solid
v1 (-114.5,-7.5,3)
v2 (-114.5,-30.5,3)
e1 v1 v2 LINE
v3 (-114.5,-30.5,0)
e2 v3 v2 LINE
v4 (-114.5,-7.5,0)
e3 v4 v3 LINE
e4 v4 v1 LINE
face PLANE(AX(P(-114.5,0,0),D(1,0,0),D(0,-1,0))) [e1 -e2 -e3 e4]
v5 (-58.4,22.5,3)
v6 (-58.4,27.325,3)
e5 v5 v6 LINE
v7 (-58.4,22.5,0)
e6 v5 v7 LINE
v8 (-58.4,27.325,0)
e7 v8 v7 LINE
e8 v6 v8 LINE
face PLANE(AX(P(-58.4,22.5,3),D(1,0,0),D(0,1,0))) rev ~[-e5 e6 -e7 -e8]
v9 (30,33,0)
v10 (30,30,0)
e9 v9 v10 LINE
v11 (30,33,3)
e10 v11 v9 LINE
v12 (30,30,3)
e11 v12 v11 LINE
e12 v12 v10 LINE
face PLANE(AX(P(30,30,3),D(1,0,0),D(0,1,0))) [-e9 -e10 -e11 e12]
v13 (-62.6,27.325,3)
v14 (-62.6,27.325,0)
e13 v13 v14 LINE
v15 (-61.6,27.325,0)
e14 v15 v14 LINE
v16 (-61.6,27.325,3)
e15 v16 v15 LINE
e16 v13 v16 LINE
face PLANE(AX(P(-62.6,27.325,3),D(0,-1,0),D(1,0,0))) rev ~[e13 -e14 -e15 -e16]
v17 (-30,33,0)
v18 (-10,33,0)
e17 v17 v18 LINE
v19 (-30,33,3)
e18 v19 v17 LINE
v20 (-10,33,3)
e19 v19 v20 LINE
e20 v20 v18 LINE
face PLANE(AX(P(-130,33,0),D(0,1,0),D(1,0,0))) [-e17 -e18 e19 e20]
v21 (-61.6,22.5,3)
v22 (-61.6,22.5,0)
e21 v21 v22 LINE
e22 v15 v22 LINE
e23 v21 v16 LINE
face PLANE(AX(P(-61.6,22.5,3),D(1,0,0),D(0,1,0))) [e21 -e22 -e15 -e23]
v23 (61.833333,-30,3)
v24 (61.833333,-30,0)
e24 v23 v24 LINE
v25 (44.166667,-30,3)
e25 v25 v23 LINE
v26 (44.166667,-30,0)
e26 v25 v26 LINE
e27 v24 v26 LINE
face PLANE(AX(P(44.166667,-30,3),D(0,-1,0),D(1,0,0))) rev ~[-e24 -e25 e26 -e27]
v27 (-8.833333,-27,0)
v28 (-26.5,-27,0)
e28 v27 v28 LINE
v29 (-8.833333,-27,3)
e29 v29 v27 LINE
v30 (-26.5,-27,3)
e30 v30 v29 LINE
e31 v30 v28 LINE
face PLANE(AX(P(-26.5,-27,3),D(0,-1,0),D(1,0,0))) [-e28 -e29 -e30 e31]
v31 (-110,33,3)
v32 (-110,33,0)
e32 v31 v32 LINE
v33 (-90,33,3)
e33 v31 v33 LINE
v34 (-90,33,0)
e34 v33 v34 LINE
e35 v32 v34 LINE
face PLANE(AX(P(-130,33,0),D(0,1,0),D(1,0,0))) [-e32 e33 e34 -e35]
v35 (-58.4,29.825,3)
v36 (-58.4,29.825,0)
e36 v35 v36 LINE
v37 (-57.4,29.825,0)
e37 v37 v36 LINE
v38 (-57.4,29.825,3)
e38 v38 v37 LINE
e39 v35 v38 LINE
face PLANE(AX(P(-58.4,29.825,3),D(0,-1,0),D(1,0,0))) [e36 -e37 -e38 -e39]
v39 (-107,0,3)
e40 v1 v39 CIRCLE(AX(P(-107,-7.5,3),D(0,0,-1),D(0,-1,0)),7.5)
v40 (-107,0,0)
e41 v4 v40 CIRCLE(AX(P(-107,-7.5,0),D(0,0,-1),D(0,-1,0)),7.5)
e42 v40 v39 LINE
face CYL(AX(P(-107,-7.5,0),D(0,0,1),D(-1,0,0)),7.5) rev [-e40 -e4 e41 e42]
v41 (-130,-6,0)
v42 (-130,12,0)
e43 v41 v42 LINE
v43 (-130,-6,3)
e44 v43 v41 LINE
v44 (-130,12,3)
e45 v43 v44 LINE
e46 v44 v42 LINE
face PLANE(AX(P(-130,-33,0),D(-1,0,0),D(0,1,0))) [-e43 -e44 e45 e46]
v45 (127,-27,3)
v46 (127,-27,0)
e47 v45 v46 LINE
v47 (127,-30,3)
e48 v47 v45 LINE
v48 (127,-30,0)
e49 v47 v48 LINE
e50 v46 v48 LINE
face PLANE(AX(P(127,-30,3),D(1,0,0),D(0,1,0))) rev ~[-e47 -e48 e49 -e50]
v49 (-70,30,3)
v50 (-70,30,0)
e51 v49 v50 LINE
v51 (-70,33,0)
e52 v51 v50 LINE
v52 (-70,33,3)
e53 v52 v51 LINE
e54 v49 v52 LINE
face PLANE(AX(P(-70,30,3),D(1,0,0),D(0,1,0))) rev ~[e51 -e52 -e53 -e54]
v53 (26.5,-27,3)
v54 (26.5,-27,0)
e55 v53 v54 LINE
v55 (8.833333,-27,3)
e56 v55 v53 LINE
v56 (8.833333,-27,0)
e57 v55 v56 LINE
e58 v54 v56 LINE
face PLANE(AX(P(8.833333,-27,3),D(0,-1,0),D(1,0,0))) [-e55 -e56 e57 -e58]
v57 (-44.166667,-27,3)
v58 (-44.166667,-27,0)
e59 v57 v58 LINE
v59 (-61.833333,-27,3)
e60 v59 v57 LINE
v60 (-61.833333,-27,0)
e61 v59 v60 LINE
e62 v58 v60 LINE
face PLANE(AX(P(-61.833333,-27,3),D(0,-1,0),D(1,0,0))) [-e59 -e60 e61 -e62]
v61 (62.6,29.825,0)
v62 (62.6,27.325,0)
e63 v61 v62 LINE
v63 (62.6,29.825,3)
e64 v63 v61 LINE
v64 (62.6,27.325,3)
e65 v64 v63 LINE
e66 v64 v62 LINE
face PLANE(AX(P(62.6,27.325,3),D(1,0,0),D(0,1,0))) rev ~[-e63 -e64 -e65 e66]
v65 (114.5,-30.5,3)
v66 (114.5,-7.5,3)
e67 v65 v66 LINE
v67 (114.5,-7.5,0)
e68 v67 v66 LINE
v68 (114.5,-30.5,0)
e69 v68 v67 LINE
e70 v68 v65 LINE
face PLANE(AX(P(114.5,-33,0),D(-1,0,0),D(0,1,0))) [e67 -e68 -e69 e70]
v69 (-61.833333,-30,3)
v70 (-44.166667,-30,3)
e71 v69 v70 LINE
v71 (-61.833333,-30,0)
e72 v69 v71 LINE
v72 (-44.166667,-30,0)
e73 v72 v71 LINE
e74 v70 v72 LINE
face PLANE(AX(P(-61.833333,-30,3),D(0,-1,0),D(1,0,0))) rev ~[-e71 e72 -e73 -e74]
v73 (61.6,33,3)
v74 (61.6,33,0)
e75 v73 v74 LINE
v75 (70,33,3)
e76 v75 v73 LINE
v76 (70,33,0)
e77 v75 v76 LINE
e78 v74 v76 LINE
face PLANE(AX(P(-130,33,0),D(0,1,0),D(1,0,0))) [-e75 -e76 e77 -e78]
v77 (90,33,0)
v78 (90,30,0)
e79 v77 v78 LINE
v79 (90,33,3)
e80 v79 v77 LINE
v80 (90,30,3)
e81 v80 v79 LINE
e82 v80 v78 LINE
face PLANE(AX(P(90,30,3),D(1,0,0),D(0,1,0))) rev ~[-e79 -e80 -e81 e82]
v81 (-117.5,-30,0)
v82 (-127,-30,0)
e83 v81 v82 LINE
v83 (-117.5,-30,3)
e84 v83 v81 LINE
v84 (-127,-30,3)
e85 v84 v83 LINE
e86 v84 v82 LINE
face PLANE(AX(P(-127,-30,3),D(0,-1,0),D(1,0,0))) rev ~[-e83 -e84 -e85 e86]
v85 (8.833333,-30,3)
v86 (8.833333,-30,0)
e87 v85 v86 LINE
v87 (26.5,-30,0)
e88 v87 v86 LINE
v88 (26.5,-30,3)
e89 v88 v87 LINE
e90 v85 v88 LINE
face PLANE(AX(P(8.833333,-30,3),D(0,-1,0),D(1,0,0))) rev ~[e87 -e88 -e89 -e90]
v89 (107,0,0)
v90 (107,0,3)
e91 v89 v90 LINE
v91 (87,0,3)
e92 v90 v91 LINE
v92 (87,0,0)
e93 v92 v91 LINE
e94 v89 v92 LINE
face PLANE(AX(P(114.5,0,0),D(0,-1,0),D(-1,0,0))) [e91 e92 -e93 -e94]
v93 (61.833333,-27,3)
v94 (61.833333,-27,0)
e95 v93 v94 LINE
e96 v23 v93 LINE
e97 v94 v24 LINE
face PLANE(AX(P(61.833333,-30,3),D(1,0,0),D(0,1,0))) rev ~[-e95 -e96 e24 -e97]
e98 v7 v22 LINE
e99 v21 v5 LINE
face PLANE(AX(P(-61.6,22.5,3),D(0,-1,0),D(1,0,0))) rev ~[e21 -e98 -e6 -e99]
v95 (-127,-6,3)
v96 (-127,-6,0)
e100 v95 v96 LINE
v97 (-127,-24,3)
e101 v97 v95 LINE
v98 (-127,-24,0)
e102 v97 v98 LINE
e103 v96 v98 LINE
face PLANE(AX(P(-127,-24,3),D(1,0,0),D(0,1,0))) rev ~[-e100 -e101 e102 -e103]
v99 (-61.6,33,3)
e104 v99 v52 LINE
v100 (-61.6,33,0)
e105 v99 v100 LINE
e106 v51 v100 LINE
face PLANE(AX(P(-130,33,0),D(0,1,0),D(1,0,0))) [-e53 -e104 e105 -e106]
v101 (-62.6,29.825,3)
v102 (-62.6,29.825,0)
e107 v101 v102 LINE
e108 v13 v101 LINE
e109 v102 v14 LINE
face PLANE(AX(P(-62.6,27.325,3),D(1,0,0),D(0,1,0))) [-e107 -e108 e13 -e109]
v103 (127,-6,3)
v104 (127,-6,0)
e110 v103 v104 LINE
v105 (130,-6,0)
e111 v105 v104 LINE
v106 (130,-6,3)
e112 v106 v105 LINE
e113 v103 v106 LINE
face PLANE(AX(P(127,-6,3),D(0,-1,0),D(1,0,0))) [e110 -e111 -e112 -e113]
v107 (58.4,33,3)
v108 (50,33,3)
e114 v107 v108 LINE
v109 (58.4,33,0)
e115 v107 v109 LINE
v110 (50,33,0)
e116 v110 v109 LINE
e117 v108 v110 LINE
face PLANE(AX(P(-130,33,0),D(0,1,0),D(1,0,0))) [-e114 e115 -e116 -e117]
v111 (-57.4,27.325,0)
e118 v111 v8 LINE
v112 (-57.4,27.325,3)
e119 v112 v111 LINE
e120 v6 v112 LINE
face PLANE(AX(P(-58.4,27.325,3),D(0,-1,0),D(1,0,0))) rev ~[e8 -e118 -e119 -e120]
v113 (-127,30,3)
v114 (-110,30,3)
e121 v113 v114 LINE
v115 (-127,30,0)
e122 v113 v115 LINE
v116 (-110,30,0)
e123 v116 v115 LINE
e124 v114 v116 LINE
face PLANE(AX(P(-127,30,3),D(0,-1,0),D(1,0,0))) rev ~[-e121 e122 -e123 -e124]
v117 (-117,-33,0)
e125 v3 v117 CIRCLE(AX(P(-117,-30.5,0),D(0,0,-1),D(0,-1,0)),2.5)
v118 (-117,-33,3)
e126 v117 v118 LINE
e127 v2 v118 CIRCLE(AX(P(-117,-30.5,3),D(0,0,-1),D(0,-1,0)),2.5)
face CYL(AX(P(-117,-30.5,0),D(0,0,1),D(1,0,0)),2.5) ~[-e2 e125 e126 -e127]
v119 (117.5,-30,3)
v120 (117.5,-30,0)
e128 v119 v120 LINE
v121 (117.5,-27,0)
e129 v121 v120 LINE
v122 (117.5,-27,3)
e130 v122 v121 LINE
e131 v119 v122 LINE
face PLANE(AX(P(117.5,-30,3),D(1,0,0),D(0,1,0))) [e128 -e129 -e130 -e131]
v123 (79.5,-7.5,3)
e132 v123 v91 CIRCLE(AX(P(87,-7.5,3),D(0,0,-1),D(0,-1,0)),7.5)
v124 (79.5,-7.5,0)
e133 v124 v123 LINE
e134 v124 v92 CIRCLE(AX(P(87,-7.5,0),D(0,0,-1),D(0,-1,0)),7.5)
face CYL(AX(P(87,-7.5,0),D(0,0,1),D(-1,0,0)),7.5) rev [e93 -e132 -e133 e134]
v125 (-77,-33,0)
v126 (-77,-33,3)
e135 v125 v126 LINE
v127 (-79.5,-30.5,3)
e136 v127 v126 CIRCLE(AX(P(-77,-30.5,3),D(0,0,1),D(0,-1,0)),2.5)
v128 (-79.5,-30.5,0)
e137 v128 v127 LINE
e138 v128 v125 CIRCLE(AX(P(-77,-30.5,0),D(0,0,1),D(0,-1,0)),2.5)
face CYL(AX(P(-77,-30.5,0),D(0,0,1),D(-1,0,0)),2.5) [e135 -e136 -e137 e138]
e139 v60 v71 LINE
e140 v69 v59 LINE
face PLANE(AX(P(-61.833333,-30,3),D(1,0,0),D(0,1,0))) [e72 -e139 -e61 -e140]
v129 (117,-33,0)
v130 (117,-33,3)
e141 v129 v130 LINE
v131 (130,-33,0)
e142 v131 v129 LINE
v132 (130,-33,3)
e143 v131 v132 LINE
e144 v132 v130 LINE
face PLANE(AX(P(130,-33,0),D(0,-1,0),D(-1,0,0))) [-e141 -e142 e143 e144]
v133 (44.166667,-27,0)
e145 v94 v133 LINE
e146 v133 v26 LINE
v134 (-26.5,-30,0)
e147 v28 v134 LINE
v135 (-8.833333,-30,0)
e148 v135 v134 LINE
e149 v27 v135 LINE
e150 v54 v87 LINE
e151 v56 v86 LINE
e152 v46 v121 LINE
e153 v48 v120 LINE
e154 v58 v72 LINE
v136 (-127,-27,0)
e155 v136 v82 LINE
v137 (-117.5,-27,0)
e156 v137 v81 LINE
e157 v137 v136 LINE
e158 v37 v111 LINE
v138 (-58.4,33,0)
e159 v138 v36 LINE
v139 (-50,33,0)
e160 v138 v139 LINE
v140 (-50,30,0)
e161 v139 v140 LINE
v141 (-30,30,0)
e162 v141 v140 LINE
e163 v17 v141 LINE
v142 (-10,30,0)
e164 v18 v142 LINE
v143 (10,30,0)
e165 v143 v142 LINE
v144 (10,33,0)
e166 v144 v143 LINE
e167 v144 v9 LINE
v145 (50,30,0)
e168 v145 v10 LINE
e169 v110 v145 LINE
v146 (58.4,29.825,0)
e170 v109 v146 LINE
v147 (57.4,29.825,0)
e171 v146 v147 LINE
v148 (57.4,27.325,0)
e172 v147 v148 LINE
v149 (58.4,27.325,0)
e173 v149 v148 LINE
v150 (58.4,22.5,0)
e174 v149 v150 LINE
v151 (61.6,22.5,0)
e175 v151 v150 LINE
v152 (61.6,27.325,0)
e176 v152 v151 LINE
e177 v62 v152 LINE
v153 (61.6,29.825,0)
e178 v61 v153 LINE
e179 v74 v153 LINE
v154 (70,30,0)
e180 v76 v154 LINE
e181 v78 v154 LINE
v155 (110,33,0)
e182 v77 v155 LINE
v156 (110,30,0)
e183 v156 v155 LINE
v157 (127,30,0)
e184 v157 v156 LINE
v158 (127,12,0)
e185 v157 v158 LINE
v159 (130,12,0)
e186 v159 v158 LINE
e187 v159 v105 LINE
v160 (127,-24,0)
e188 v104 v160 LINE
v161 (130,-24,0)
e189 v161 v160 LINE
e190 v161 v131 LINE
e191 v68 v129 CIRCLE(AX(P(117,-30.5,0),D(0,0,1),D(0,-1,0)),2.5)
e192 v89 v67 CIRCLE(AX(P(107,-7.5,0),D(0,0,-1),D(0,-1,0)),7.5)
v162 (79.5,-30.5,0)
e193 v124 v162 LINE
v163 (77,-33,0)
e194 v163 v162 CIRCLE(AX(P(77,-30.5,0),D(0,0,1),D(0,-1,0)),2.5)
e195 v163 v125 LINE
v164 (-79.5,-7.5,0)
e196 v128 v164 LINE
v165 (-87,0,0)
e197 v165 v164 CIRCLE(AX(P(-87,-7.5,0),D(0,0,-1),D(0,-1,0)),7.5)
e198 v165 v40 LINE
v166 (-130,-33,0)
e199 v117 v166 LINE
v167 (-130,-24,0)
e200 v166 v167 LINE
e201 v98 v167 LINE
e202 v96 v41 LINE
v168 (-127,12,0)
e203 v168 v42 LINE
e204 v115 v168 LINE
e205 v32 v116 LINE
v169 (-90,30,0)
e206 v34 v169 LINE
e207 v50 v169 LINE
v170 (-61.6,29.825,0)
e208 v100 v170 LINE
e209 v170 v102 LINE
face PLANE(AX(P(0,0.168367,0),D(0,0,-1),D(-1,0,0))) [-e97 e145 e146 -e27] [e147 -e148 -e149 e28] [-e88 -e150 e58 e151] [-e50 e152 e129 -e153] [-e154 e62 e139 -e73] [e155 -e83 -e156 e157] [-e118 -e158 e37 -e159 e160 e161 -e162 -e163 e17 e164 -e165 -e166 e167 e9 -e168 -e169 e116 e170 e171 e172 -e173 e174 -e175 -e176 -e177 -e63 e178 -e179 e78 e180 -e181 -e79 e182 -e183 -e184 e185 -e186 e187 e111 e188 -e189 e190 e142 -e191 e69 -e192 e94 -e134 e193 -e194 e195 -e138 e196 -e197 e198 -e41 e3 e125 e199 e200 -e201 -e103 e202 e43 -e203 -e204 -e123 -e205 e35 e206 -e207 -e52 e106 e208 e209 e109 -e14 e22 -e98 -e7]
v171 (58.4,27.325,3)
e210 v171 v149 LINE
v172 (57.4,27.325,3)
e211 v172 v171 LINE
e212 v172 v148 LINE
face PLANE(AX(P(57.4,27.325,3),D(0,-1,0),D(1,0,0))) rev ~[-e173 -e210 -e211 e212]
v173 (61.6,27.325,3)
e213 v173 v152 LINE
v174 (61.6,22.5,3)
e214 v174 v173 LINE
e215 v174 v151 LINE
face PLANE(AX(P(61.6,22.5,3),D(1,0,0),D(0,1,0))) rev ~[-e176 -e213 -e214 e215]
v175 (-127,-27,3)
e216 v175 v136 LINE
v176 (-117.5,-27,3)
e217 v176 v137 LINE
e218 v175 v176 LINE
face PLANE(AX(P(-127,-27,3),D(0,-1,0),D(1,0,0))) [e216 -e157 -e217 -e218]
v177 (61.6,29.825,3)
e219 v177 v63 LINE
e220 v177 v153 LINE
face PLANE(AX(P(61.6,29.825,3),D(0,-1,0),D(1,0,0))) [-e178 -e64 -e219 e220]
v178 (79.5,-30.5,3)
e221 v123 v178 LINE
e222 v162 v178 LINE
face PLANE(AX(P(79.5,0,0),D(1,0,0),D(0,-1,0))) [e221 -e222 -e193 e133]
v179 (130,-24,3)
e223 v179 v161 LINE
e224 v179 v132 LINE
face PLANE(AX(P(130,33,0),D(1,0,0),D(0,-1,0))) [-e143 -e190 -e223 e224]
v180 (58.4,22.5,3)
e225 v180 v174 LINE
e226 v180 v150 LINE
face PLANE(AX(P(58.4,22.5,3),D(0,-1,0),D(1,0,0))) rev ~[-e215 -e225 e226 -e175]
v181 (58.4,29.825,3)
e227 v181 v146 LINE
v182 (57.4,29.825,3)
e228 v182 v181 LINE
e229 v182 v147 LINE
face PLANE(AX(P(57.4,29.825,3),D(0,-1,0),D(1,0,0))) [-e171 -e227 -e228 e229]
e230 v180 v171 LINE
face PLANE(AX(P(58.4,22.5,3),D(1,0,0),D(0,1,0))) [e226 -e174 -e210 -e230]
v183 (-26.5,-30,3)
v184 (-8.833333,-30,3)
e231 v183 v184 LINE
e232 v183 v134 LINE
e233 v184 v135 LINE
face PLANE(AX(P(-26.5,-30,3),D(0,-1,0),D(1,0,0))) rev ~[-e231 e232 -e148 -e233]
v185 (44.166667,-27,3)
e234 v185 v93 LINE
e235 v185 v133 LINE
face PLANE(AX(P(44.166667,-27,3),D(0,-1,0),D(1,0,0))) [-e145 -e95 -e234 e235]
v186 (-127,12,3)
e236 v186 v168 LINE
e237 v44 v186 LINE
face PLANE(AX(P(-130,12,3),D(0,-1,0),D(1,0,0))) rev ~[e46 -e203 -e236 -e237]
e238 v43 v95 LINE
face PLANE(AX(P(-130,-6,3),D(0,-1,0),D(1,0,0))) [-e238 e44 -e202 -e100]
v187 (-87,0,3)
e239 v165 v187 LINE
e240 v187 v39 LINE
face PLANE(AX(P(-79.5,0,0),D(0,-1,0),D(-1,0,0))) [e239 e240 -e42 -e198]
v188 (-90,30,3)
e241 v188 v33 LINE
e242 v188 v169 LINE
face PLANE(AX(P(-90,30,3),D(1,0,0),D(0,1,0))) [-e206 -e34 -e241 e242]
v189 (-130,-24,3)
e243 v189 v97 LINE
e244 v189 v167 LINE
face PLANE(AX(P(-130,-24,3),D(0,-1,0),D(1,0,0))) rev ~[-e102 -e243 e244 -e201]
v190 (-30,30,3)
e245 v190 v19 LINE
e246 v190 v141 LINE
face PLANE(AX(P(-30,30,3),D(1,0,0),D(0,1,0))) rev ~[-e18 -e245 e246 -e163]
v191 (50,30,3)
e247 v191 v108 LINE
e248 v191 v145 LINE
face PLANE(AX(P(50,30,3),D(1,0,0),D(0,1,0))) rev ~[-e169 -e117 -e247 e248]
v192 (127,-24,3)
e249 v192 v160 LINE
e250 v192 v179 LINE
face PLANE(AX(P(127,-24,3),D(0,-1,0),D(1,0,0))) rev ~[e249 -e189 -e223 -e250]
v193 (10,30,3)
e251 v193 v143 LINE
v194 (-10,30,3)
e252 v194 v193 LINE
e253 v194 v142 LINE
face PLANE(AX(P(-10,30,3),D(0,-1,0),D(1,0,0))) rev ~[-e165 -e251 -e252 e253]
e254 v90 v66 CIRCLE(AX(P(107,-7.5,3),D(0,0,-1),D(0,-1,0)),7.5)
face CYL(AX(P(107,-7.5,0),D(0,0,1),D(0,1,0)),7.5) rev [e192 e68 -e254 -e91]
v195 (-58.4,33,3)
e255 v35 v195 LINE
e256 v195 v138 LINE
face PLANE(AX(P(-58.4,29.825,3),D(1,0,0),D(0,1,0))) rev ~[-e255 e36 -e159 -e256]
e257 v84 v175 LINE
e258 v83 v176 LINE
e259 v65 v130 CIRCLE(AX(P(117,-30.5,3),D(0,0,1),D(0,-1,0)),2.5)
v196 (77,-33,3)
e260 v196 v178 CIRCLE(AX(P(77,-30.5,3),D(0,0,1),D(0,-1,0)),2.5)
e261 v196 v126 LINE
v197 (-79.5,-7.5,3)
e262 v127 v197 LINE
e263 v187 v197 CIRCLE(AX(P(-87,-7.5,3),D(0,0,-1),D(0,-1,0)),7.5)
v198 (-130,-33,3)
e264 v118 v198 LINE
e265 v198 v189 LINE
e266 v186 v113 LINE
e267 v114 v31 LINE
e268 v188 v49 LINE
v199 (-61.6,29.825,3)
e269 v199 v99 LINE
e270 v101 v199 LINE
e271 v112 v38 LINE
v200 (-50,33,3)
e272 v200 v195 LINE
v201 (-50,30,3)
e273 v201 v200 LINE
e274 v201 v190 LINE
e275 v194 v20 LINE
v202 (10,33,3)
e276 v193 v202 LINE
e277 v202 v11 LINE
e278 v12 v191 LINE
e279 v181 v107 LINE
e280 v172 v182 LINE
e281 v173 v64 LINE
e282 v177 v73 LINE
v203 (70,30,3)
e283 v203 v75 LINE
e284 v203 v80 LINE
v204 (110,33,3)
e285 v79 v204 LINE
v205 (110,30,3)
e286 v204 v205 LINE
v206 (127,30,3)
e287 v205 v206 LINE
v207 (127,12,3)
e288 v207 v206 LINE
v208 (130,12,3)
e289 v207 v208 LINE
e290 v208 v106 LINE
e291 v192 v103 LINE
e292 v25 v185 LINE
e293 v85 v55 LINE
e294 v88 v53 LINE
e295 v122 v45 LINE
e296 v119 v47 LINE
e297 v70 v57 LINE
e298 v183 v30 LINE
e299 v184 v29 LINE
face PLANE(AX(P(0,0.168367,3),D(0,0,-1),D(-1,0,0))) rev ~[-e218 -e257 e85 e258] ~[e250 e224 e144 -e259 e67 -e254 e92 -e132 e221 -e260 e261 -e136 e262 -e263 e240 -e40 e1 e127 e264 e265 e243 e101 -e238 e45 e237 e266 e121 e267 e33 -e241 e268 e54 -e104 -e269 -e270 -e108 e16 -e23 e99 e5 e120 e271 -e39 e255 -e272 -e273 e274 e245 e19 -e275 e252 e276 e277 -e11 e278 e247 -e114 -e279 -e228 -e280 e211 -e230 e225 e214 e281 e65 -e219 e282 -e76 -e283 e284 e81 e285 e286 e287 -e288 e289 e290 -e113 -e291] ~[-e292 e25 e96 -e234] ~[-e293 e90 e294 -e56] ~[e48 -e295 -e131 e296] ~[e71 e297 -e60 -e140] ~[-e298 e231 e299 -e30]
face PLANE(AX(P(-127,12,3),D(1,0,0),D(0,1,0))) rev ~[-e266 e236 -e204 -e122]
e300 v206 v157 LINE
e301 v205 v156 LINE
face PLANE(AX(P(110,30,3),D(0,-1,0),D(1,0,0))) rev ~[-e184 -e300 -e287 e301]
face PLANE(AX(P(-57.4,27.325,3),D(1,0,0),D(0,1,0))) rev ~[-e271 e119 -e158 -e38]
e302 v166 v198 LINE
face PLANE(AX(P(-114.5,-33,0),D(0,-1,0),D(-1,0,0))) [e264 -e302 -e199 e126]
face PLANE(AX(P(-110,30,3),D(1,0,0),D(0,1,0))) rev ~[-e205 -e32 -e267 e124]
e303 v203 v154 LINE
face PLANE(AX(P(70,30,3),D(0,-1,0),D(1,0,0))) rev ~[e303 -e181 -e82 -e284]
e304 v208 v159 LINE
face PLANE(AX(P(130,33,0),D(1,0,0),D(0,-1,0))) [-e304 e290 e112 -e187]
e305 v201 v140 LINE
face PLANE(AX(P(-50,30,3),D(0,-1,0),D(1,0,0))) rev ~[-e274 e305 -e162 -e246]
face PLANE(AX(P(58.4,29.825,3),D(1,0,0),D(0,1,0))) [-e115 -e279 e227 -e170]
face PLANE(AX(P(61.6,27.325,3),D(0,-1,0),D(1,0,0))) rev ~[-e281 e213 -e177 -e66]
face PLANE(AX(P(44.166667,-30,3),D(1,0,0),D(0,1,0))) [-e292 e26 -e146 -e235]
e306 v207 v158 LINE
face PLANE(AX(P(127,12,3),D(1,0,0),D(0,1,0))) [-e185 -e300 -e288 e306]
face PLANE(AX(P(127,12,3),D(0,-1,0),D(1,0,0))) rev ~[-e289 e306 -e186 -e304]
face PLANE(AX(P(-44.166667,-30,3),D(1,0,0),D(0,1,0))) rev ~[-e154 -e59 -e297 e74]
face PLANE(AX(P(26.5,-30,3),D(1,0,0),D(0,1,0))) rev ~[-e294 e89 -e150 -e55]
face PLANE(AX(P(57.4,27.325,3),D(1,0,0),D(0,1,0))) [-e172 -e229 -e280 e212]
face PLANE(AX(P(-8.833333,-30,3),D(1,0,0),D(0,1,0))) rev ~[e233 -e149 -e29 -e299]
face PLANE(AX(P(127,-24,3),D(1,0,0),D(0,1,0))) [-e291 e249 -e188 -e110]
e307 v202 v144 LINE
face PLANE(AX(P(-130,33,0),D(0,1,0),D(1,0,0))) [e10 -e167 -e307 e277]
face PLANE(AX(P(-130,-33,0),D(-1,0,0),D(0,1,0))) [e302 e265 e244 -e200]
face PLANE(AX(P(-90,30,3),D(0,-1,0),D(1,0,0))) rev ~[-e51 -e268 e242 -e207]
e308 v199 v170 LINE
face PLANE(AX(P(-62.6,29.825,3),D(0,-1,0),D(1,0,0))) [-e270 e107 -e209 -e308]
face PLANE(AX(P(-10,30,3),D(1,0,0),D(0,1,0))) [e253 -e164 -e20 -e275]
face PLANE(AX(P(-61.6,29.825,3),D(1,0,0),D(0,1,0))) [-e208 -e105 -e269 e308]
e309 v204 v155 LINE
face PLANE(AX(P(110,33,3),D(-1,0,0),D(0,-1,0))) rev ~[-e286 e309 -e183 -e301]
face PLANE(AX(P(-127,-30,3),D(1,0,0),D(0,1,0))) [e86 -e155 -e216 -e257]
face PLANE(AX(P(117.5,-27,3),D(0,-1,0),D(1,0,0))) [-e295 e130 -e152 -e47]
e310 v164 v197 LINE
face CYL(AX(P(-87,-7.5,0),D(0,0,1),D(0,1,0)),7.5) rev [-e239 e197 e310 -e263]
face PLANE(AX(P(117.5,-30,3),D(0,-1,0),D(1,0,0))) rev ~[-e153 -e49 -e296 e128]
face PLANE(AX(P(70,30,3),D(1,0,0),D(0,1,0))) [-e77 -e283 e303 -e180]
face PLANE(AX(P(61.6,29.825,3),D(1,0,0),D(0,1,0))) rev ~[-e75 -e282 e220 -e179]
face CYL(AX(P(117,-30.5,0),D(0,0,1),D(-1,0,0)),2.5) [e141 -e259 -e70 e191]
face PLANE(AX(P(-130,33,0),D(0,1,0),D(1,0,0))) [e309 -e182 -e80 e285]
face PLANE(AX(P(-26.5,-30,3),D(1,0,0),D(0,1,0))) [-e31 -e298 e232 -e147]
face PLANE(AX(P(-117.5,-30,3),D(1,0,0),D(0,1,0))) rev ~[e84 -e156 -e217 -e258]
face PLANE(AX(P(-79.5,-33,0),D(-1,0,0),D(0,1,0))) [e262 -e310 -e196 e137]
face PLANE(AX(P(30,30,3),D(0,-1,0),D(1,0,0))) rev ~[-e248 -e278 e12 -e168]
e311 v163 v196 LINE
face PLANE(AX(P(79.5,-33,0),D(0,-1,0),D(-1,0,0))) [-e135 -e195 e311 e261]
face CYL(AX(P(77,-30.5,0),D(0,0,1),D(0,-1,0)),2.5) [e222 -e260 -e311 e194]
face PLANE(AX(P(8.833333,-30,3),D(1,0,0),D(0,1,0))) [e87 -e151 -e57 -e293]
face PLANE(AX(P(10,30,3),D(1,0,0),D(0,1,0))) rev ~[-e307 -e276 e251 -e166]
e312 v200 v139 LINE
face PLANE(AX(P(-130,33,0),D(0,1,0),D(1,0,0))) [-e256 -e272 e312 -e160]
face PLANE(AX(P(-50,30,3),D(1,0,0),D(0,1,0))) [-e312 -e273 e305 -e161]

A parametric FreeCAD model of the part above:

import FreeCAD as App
import Part
import Sketcher
from FreeCAD import Vector


def edges_at(feature, points):
    """Names of the edges that pass closest to the given points."""
    edges = feature.Shape.Edges
    near = lambda p: min(range(len(edges)), key=lambda i: edges[i].distToShape(Part.Vertex(*p))[0])
    return sorted({f"Edge{near(p) + 1}" for p in points})

doc = App.newDocument("Part")
body = doc.addObject("PartDesign::Body", "Body")

# Sketch on XY plane
sketch1 = body.newObject("Sketcher::SketchObject", "Sketch")
sketch1.AttachmentSupport = (doc.getObject("XY_Plane"), [""])
sketch1.MapMode = "FlatFace"
sketch1.addGeometry(Part.LineSegment(Vector(130, 33, 0), Vector(-130, 33, 0)), False)
sketch1.addGeometry(Part.LineSegment(Vector(-130, 33, 0), Vector(-130, -33, 0)), False)
sketch1.addGeometry(Part.LineSegment(Vector(-130, -33, 0), Vector(-114.5, -33, 0)), False)
sketch1.addGeometry(Part.LineSegment(Vector(-114.5, -33, 0), Vector(-114.5, 0, 0)), False)
sketch1.addGeometry(Part.LineSegment(Vector(-114.5, 0, 0), Vector(-79.5, 0, 0)), False)
sketch1.addGeometry(Part.LineSegment(Vector(-79.5, 0, 0), Vector(-79.5, -33, 0)), False)
sketch1.addGeometry(Part.LineSegment(Vector(-79.5, -33, 0), Vector(79.5, -33, 0)), False)
sketch1.addGeometry(Part.LineSegment(Vector(79.5, -33, 0), Vector(79.5, 0, 0)), False)
sketch1.addGeometry(Part.LineSegment(Vector(79.5, 0, 0), Vector(114.5, 0, 0)), False)
sketch1.addGeometry(Part.LineSegment(Vector(114.5, 0, 0), Vector(114.5, -33, 0)), False)
sketch1.addGeometry(Part.LineSegment(Vector(114.5, -33, 0), Vector(130, -33, 0)), False)
sketch1.addGeometry(Part.LineSegment(Vector(130, -33, 0), Vector(130, 33, 0)), False)
sketch1.addConstraint(Sketcher.Constraint("Coincident", 0, 2, 1, 1))
sketch1.addConstraint(Sketcher.Constraint("Coincident", 1, 2, 2, 1))
sketch1.addConstraint(Sketcher.Constraint("Coincident", 2, 2, 3, 1))
sketch1.addConstraint(Sketcher.Constraint("Coincident", 3, 2, 4, 1))
sketch1.addConstraint(Sketcher.Constraint("Coincident", 4, 2, 5, 1))
sketch1.addConstraint(Sketcher.Constraint("Coincident", 5, 2, 6, 1))
sketch1.addConstraint(Sketcher.Constraint("Coincident", 6, 2, 7, 1))
sketch1.addConstraint(Sketcher.Constraint("Coincident", 7, 2, 8, 1))
sketch1.addConstraint(Sketcher.Constraint("Coincident", 8, 2, 9, 1))
sketch1.addConstraint(Sketcher.Constraint("Coincident", 9, 2, 10, 1))
sketch1.addConstraint(Sketcher.Constraint("Coincident", 10, 2, 11, 1))
sketch1.addConstraint(Sketcher.Constraint("Coincident", 11, 2, 0, 1))
sketch1.addConstraint(Sketcher.Constraint("Horizontal", 0))
sketch1.addConstraint(Sketcher.Constraint("Vertical", 1))
sketch1.addConstraint(Sketcher.Constraint("Horizontal", 2))
sketch1.addConstraint(Sketcher.Constraint("Vertical", 3))
sketch1.addConstraint(Sketcher.Constraint("Horizontal", 4))
sketch1.addConstraint(Sketcher.Constraint("Vertical", 5))
sketch1.addConstraint(Sketcher.Constraint("Horizontal", 6))
sketch1.addConstraint(Sketcher.Constraint("Vertical", 7))
sketch1.addConstraint(Sketcher.Constraint("Horizontal", 8))
sketch1.addConstraint(Sketcher.Constraint("Vertical", 9))
sketch1.addConstraint(Sketcher.Constraint("Horizontal", 10))
sketch1.addConstraint(Sketcher.Constraint("Vertical", 11))
sketch1.addConstraint(Sketcher.Constraint("Symmetric", 4, 2, 7, 2, -1, 1))
sketch1.addConstraint(Sketcher.Constraint("Symmetric", 0, 2, 10, 2, -1, 1))
sketch1.addConstraint(Sketcher.Constraint("Symmetric", 3, 2, 8, 2, -2))
sketch1.addConstraint(Sketcher.Constraint("Horizontal", 2, 2, 5, 2))
sketch1.addConstraint(Sketcher.Constraint("Horizontal", 6, 2, 9, 2))
sketch1.addConstraint(Sketcher.Constraint("DistanceX", 0, 2, 0, 1, 260.0))
sketch1.addConstraint(Sketcher.Constraint("DistanceX", 4, 1, 4, 2, 35.0))
sketch1.addConstraint(Sketcher.Constraint("DistanceX", 6, 1, 6, 2, 159.0))
sketch1.addConstraint(Sketcher.Constraint("DistanceY", 1, 2, 1, 1, 66.0))
pad1 = body.newObject("PartDesign::Pad", "Pad")
pad1.Profile = sketch1
pad1.Length = 3

# Sketch on XY plane
sketch2 = body.newObject("Sketcher::SketchObject", "Sketch001")
sketch2.AttachmentSupport = (doc.getObject("XY_Plane"), [""])
sketch2.MapMode = "FlatFace"
sketch2.AttachmentOffset = App.Placement(Vector(0, 0, 3), App.Rotation())
sketch2.addGeometry(Part.LineSegment(Vector(-130, 12, 0), Vector(-127, 12, 0)), False)
sketch2.addGeometry(Part.LineSegment(Vector(-127, 12, 0), Vector(-127, 30, 0)), False)
sketch2.addGeometry(Part.LineSegment(Vector(-127, 30, 0), Vector(-110, 30, 0)), False)
sketch2.addGeometry(Part.LineSegment(Vector(-110, 30, 0), Vector(-110, 33, 0)), False)
sketch2.addGeometry(Part.LineSegment(Vector(-110, 33, 0), Vector(-130, 33, 0)), False)
sketch2.addGeometry(Part.LineSegment(Vector(-130, 33, 0), Vector(-130, 12, 0)), False)
sketch2.addGeometry(Part.LineSegment(Vector(-130, -6, 0), Vector(-130, -24, 0)), False)
sketch2.addGeometry(Part.LineSegment(Vector(-130, -24, 0), Vector(-127, -24, 0)), False)
sketch2.addGeometry(Part.LineSegment(Vector(-127, -24, 0), Vector(-127, -6, 0)), False)
sketch2.addGeometry(Part.LineSegment(Vector(-127, -6, 0), Vector(-130, -6, 0)), False)
sketch2.addGeometry(Part.LineSegment(Vector(-61.833333, -27, 0), Vector(-61.833333, -30, 0)), False)
sketch2.addGeometry(Part.LineSegment(Vector(-61.833333, -30, 0), Vector(-44.166667, -30, 0)), False)
sketch2.addGeometry(Part.LineSegment(Vector(-44.166667, -30, 0), Vector(-44.166667, -27, 0)), False)
sketch2.addGeometry(Part.LineSegment(Vector(-44.166667, -27, 0), Vector(-61.833333, -27, 0)), False)
sketch2.addGeometry(Part.LineSegment(Vector(-26.5, -27, 0), Vector(-26.5, -30, 0)), False)
sketch2.addGeometry(Part.LineSegment(Vector(-26.5, -30, 0), Vector(-8.833333, -30, 0)), False)
sketch2.addGeometry(Part.LineSegment(Vector(-8.833333, -30, 0), Vector(-8.833333, -27, 0)), False)
sketch2.addGeometry(Part.LineSegment(Vector(-8.833333, -27, 0), Vector(-26.5, -27, 0)), False)
sketch2.addGeometry(Part.LineSegment(Vector(8.833333, -27, 0), Vector(8.833333, -30, 0)), False)
sketch2.addGeometry(Part.LineSegment(Vector(8.833333, -30, 0), Vector(26.5, -30, 0)), False)
sketch2.addGeometry(Part.LineSegment(Vector(26.5, -30, 0), Vector(26.5, -27, 0)), False)
sketch2.addGeometry(Part.LineSegment(Vector(26.5, -27, 0), Vector(8.833333, -27, 0)), False)
sketch2.addGeometry(Part.LineSegment(Vector(44.166667, -27, 0), Vector(44.166667, -30, 0)), False)
sketch2.addGeometry(Part.LineSegment(Vector(44.166667, -30, 0), Vector(61.833333, -30, 0)), False)
sketch2.addGeometry(Part.LineSegment(Vector(61.833333, -30, 0), Vector(61.833333, -27, 0)), False)
sketch2.addGeometry(Part.LineSegment(Vector(61.833333, -27, 0), Vector(44.166667, -27, 0)), False)
sketch2.addGeometry(Part.LineSegment(Vector(117.5, -27, 0), Vector(117.5, -30, 0)), False)
sketch2.addGeometry(Part.LineSegment(Vector(117.5, -30, 0), Vector(127, -30, 0)), False)
sketch2.addGeometry(Part.LineSegment(Vector(127, -30, 0), Vector(127, -27, 0)), False)
sketch2.addGeometry(Part.LineSegment(Vector(127, -27, 0), Vector(117.5, -27, 0)), False)
sketch2.addGeometry(Part.LineSegment(Vector(127, -6, 0), Vector(127, -24, 0)), False)
sketch2.addGeometry(Part.LineSegment(Vector(127, -24, 0), Vector(130, -24, 0)), False)
sketch2.addGeometry(Part.LineSegment(Vector(130, -24, 0), Vector(130, -6, 0)), False)
sketch2.addGeometry(Part.LineSegment(Vector(130, -6, 0), Vector(127, -6, 0)), False)
sketch2.addGeometry(Part.LineSegment(Vector(127, 30, 0), Vector(127, 12, 0)), False)
sketch2.addGeometry(Part.LineSegment(Vector(127, 12, 0), Vector(130, 12, 0)), False)
sketch2.addGeometry(Part.LineSegment(Vector(130, 12, 0), Vector(130, 33, 0)), False)
sketch2.addGeometry(Part.LineSegment(Vector(130, 33, 0), Vector(110, 33, 0)), False)
sketch2.addGeometry(Part.LineSegment(Vector(110, 33, 0), Vector(110, 30, 0)), False)
sketch2.addGeometry(Part.LineSegment(Vector(110, 30, 0), Vector(127, 30, 0)), False)
sketch2.addGeometry(Part.LineSegment(Vector(70, 33, 0), Vector(70, 30, 0)), False)
sketch2.addGeometry(Part.LineSegment(Vector(70, 30, 0), Vector(90, 30, 0)), False)
sketch2.addGeometry(Part.LineSegment(Vector(90, 30, 0), Vector(90, 33, 0)), False)
sketch2.addGeometry(Part.LineSegment(Vector(90, 33, 0), Vector(70, 33, 0)), False)
sketch2.addGeometry(Part.LineSegment(Vector(30, 33, 0), Vector(30, 30, 0)), False)
sketch2.addGeometry(Part.LineSegment(Vector(30, 30, 0), Vector(50, 30, 0)), False)
sketch2.addGeometry(Part.LineSegment(Vector(50, 30, 0), Vector(50, 33, 0)), False)
sketch2.addGeometry(Part.LineSegment(Vector(50, 33, 0), Vector(30, 33, 0)), False)
sketch2.addGeometry(Part.LineSegment(Vector(-50, 33, 0), Vector(-50, 30, 0)), False)
sketch2.addGeometry(Part.LineSegment(Vector(-50, 30, 0), Vector(-30, 30, 0)), False)
sketch2.addGeometry(Part.LineSegment(Vector(-30, 30, 0), Vector(-30, 33, 0)), False)
sketch2.addGeometry(Part.LineSegment(Vector(-30, 33, 0), Vector(-50, 33, 0)), False)
sketch2.addGeometry(Part.LineSegment(Vector(-90, 33, 0), Vector(-90, 30, 0)), False)
sketch2.addGeometry(Part.LineSegment(Vector(-90, 30, 0), Vector(-70, 30, 0)), False)
sketch2.addGeometry(Part.LineSegment(Vector(-70, 30, 0), Vector(-70, 33, 0)), False)
sketch2.addGeometry(Part.LineSegment(Vector(-70, 33, 0), Vector(-90, 33, 0)), False)
sketch2.addGeometry(Part.LineSegment(Vector(-10, 33, 0), Vector(-10, 30, 0)), False)
sketch2.addGeometry(Part.LineSegment(Vector(-10, 30, 0), Vector(10, 30, 0)), False)
sketch2.addGeometry(Part.LineSegment(Vector(10, 30, 0), Vector(10, 33, 0)), False)
sketch2.addGeometry(Part.LineSegment(Vector(10, 33, 0), Vector(-10, 33, 0)), False)
sketch2.addGeometry(Part.LineSegment(Vector(-127, -27, 0), Vector(-127, -30, 0)), False)
sketch2.addGeometry(Part.LineSegment(Vector(-127, -30, 0), Vector(-117.5, -30, 0)), False)
sketch2.addGeometry(Part.LineSegment(Vector(-117.5, -30, 0), Vector(-117.5, -27, 0)), False)
sketch2.addGeometry(Part.LineSegment(Vector(-117.5, -27, 0), Vector(-127, -27, 0)), False)
sketch2.addConstraint(Sketcher.Constraint("Coincident", 0, 2, 1, 1))
sketch2.addConstraint(Sketcher.Constraint("Coincident", 1, 2, 2, 1))
sketch2.addConstraint(Sketcher.Constraint("Coincident", 2, 2, 3, 1))
sketch2.addConstraint(Sketcher.Constraint("Coincident", 3, 2, 4, 1))
sketch2.addConstraint(Sketcher.Constraint("Coincident", 4, 2, 5, 1))
sketch2.addConstraint(Sketcher.Constraint("Coincident", 5, 2, 0, 1))
sketch2.addConstraint(Sketcher.Constraint("Coincident", 6, 2, 7, 1))
sketch2.addConstraint(Sketcher.Constraint("Coincident", 7, 2, 8, 1))
sketch2.addConstraint(Sketcher.Constraint("Coincident", 8, 2, 9, 1))
sketch2.addConstraint(Sketcher.Constraint("Coincident", 9, 2, 6, 1))
sketch2.addConstraint(Sketcher.Constraint("Coincident", 10, 2, 11, 1))
sketch2.addConstraint(Sketcher.Constraint("Coincident", 11, 2, 12, 1))
sketch2.addConstraint(Sketcher.Constraint("Coincident", 12, 2, 13, 1))
sketch2.addConstraint(Sketcher.Constraint("Coincident", 13, 2, 10, 1))
sketch2.addConstraint(Sketcher.Constraint("Coincident", 14, 2, 15, 1))
sketch2.addConstraint(Sketcher.Constraint("Coincident", 15, 2, 16, 1))
sketch2.addConstraint(Sketcher.Constraint("Coincident", 16, 2, 17, 1))
sketch2.addConstraint(Sketcher.Constraint("Coincident", 17, 2, 14, 1))
sketch2.addConstraint(Sketcher.Constraint("Coincident", 18, 2, 19, 1))
sketch2.addConstraint(Sketcher.Constraint("Coincident", 19, 2, 20, 1))
sketch2.addConstraint(Sketcher.Constraint("Coincident", 20, 2, 21, 1))
sketch2.addConstraint(Sketcher.Constraint("Coincident", 21, 2, 18, 1))
sketch2.addConstraint(Sketcher.Constraint("Coincident", 22, 2, 23, 1))
sketch2.addConstraint(Sketcher.Constraint("Coincident", 23, 2, 24, 1))
sketch2.addConstraint(Sketcher.Constraint("Coincident", 24, 2, 25, 1))
sketch2.addConstraint(Sketcher.Constraint("Coincident", 25, 2, 22, 1))
sketch2.addConstraint(Sketcher.Constraint("Coincident", 26, 2, 27, 1))
sketch2.addConstraint(Sketcher.Constraint("Coincident", 27, 2, 28, 1))
sketch2.addConstraint(Sketcher.Constraint("Coincident", 28, 2, 29, 1))
sketch2.addConstraint(Sketcher.Constraint("Coincident", 29, 2, 26, 1))
sketch2.addConstraint(Sketcher.Constraint("Coincident", 30, 2, 31, 1))
sketch2.addConstraint(Sketcher.Constraint("Coincident", 31, 2, 32, 1))
sketch2.addConstraint(Sketcher.Constraint("Coincident", 32, 2, 33, 1))
sketch2.addConstraint(Sketcher.Constraint("Coincident", 33, 2, 30, 1))
sketch2.addConstraint(Sketcher.Constraint("Coincident", 34, 2, 35, 1))
sketch2.addConstraint(Sketcher.Constraint("Coincident", 35, 2, 36, 1))
sketch2.addConstraint(Sketcher.Constraint("Coincident", 36, 2, 37, 1))
sketch2.addConstraint(Sketcher.Constraint("Coincident", 37, 2, 38, 1))
sketch2.addConstraint(Sketcher.Constraint("Coincident", 38, 2, 39, 1))
sketch2.addConstraint(Sketcher.Constraint("Coincident", 39, 2, 34, 1))
sketch2.addConstraint(Sketcher.Constraint("Coincident", 40, 2, 41, 1))
sketch2.addConstraint(Sketcher.Constraint("Coincident", 41, 2, 42, 1))
sketch2.addConstraint(Sketcher.Constraint("Coincident", 42, 2, 43, 1))
sketch2.addConstraint(Sketcher.Constraint("Coincident", 43, 2, 40, 1))
sketch2.addConstraint(Sketcher.Constraint("Coincident", 44, 2, 45, 1))
sketch2.addConstraint(Sketcher.Constraint("Coincident", 45, 2, 46, 1))
sketch2.addConstraint(Sketcher.Constraint("Coincident", 46, 2, 47, 1))
sketch2.addConstraint(Sketcher.Constraint("Coincident", 47, 2, 44, 1))
sketch2.addConstraint(Sketcher.Constraint("Coincident", 48, 2, 49, 1))
sketch2.addConstraint(Sketcher.Constraint("Coincident", 49, 2, 50, 1))
sketch2.addConstraint(Sketcher.Constraint("Coincident", 50, 2, 51, 1))
sketch2.addConstraint(Sketcher.Constraint("Coincident", 51, 2, 48, 1))
sketch2.addConstraint(Sketcher.Constraint("Coincident", 52, 2, 53, 1))
sketch2.addConstraint(Sketcher.Constraint("Coincident", 53, 2, 54, 1))
sketch2.addConstraint(Sketcher.Constraint("Coincident", 54, 2, 55, 1))
sketch2.addConstraint(Sketcher.Constraint("Coincident", 55, 2, 52, 1))
sketch2.addConstraint(Sketcher.Constraint("Coincident", 56, 2, 57, 1))
sketch2.addConstraint(Sketcher.Constraint("Coincident", 57, 2, 58, 1))
sketch2.addConstraint(Sketcher.Constraint("Coincident", 58, 2, 59, 1))
sketch2.addConstraint(Sketcher.Constraint("Coincident", 59, 2, 56, 1))
sketch2.addConstraint(Sketcher.Constraint("Coincident", 60, 2, 61, 1))
sketch2.addConstraint(Sketcher.Constraint("Coincident", 61, 2, 62, 1))
sketch2.addConstraint(Sketcher.Constraint("Coincident", 62, 2, 63, 1))
sketch2.addConstraint(Sketcher.Constraint("Coincident", 63, 2, 60, 1))
sketch2.addConstraint(Sketcher.Constraint("Horizontal", 0))
sketch2.addConstraint(Sketcher.Constraint("Vertical", 1))
sketch2.addConstraint(Sketcher.Constraint("Horizontal", 2))
sketch2.addConstraint(Sketcher.Constraint("Vertical", 3))
sketch2.addConstraint(Sketcher.Constraint("Horizontal", 4))
sketch2.addConstraint(Sketcher.Constraint("Vertical", 5))
sketch2.addConstraint(Sketcher.Constraint("Vertical", 6))
sketch2.addConstraint(Sketcher.Constraint("Horizontal", 7))
sketch2.addConstraint(Sketcher.Constraint("Vertical", 8))
sketch2.addConstraint(Sketcher.Constraint("Horizontal", 9))
sketch2.addConstraint(Sketcher.Constraint("Vertical", 10))
sketch2.addConstraint(Sketcher.Constraint("Horizontal", 11))
sketch2.addConstraint(Sketcher.Constraint("Vertical", 12))
sketch2.addConstraint(Sketcher.Constraint("Horizontal", 13))
sketch2.addConstraint(Sketcher.Constraint("Vertical", 14))
sketch2.addConstraint(Sketcher.Constraint("Horizontal", 15))
sketch2.addConstraint(Sketcher.Constraint("Vertical", 16))
sketch2.addConstraint(Sketcher.Constraint("Horizontal", 17))
sketch2.addConstraint(Sketcher.Constraint("Vertical", 18))
sketch2.addConstraint(Sketcher.Constraint("Horizontal", 19))
sketch2.addConstraint(Sketcher.Constraint("Vertical", 20))
sketch2.addConstraint(Sketcher.Constraint("Horizontal", 21))
sketch2.addConstraint(Sketcher.Constraint("Vertical", 22))
sketch2.addConstraint(Sketcher.Constraint("Horizontal", 23))
sketch2.addConstraint(Sketcher.Constraint("Vertical", 24))
sketch2.addConstraint(Sketcher.Constraint("Horizontal", 25))
sketch2.addConstraint(Sketcher.Constraint("Vertical", 26))
sketch2.addConstraint(Sketcher.Constraint("Horizontal", 27))
sketch2.addConstraint(Sketcher.Constraint("Vertical", 28))
sketch2.addConstraint(Sketcher.Constraint("Horizontal", 29))
sketch2.addConstraint(Sketcher.Constraint("Vertical", 30))
sketch2.addConstraint(Sketcher.Constraint("Horizontal", 31))
sketch2.addConstraint(Sketcher.Constraint("Vertical", 32))
sketch2.addConstraint(Sketcher.Constraint("Horizontal", 33))
sketch2.addConstraint(Sketcher.Constraint("Vertical", 34))
sketch2.addConstraint(Sketcher.Constraint("Horizontal", 35))
sketch2.addConstraint(Sketcher.Constraint("Vertical", 36))
sketch2.addConstraint(Sketcher.Constraint("Horizontal", 37))
sketch2.addConstraint(Sketcher.Constraint("Vertical", 38))
sketch2.addConstraint(Sketcher.Constraint("Horizontal", 39))
sketch2.addConstraint(Sketcher.Constraint("Vertical", 40))
sketch2.addConstraint(Sketcher.Constraint("Horizontal", 41))
sketch2.addConstraint(Sketcher.Constraint("Vertical", 42))
sketch2.addConstraint(Sketcher.Constraint("Horizontal", 43))
sketch2.addConstraint(Sketcher.Constraint("Vertical", 44))
sketch2.addConstraint(Sketcher.Constraint("Horizontal", 45))
sketch2.addConstraint(Sketcher.Constraint("Vertical", 46))
sketch2.addConstraint(Sketcher.Constraint("Horizontal", 47))
sketch2.addConstraint(Sketcher.Constraint("Vertical", 48))
sketch2.addConstraint(Sketcher.Constraint("Horizontal", 49))
sketch2.addConstraint(Sketcher.Constraint("Vertical", 50))
sketch2.addConstraint(Sketcher.Constraint("Horizontal", 51))
sketch2.addConstraint(Sketcher.Constraint("Vertical", 52))
sketch2.addConstraint(Sketcher.Constraint("Horizontal", 53))
sketch2.addConstraint(Sketcher.Constraint("Vertical", 54))
sketch2.addConstraint(Sketcher.Constraint("Horizontal", 55))
sketch2.addConstraint(Sketcher.Constraint("Vertical", 56))
sketch2.addConstraint(Sketcher.Constraint("Horizontal", 57))
sketch2.addConstraint(Sketcher.Constraint("Vertical", 58))
sketch2.addConstraint(Sketcher.Constraint("Horizontal", 59))
sketch2.addConstraint(Sketcher.Constraint("Vertical", 60))
sketch2.addConstraint(Sketcher.Constraint("Horizontal", 61))
sketch2.addConstraint(Sketcher.Constraint("Vertical", 62))
sketch2.addConstraint(Sketcher.Constraint("Horizontal", 63))
sketch2.addConstraint(Sketcher.Constraint("Symmetric", 1, 2, 27, 2, -1, 1))
sketch2.addConstraint(Sketcher.Constraint("Symmetric", 39, 2, 60, 2, -1, 1))
sketch2.addConstraint(Sketcher.Constraint("Symmetric", 15, 2, 18, 2, -2))
sketch2.addConstraint(Sketcher.Constraint("Symmetric", 17, 2, 20, 2, -2))
sketch2.addConstraint(Sketcher.Constraint("Symmetric", 11, 2, 22, 2, -2))
sketch2.addConstraint(Sketcher.Constraint("Symmetric", 13, 2, 24, 2, -2))
sketch2.addConstraint(Sketcher.Constraint("Symmetric", 7, 2, 30, 2, -2))
sketch2.addConstraint(Sketcher.Constraint("Symmetric", 9, 2, 32, 2, -2))
sketch2.addConstraint(Sketcher.Constraint("Symmetric", 0, 2, 34, 2, -2))
sketch2.addConstraint(Sketcher.Constraint("Symmetric", 4, 2, 36, 2, -2))
sketch2.addConstraint(Sketcher.Constraint("Symmetric", 2, 2, 38, 2, -2))
sketch2.addConstraint(Sketcher.Constraint("Symmetric", 45, 2, 48, 2, -2))
sketch2.addConstraint(Sketcher.Constraint("Symmetric", 47, 2, 50, 2, -2))
sketch2.addConstraint(Sketcher.Constraint("Symmetric", 41, 2, 52, 2, -2))
sketch2.addConstraint(Sketcher.Constraint("Symmetric", 43, 2, 54, 2, -2))
sketch2.addConstraint(Sketcher.Constraint("Symmetric", 29, 2, 62, 2, -2))
sketch2.addConstraint(Sketcher.Constraint("Horizontal", 11, 2, 14, 2))
sketch2.addConstraint(Sketcher.Constraint("Horizontal", 13, 2, 16, 2))
sketch2.addConstraint(Sketcher.Constraint("Horizontal", 23, 2, 26, 2))
sketch2.addConstraint(Sketcher.Constraint("Horizontal", 25, 2, 28, 2))
sketch2.addConstraint(Sketcher.Constraint("Horizontal", 39, 2, 40, 2))
sketch2.addConstraint(Sketcher.Constraint("Horizontal", 37, 2, 42, 2))
sketch2.addConstraint(Sketcher.Constraint("Horizontal", 41, 2, 44, 2))
sketch2.addConstraint(Sketcher.Constraint("Horizontal", 43, 2, 46, 2))
sketch2.addConstraint(Sketcher.Constraint("Horizontal", 53, 2, 56, 2))
sketch2.addConstraint(Sketcher.Constraint("Horizontal", 55, 2, 58, 2))
sketch2.addConstraint(Sketcher.Constraint("Vertical", 5, 2, 6, 2))
sketch2.addConstraint(Sketcher.Constraint("Vertical", 1, 2, 7, 2))
sketch2.addConstraint(Sketcher.Constraint("Equal", 13, 15))
sketch2.addConstraint(Sketcher.Constraint("Equal", 37, 41))
sketch2.addConstraint(Sketcher.Constraint("Equal", 43, 45))
sketch2.addConstraint(Sketcher.Constraint("Equal", 55, 57))
sketch2.addConstraint(Sketcher.Constraint("Equal", 35, 3))
sketch2.addConstraint(Sketcher.Constraint("Equal", 1, 6))
sketch2.addConstraint(Sketcher.Constraint("Equal", 3, 10))
sketch2.addConstraint(Sketcher.Constraint("DistanceX", 0, 1, 0, 2, 3.0))
sketch2.addConstraint(Sketcher.Constraint("DistanceX", 2, 1, 2, 2, 17.0))
sketch2.addConstraint(Sketcher.Constraint("DistanceY", 1, 1, 1, 2, 18.0))
sketch2.addConstraint(Sketcher.Constraint("DistanceX", 27, 1, 27, 2, 9.5))
sketch2.addConstraint(Sketcher.Constraint("DistanceX", 0, 2, -1, 1, 127.0))
sketch2.addConstraint(Sketcher.Constraint("DistanceY", -1, 1, 0, 2, 12.0))
sketch2.addConstraint(Sketcher.Constraint("DistanceY", 6, 2, -1, 1, 24.0))
sketch2.addConstraint(Sketcher.Constraint("DistanceX", -1, 1, 40, 2, 70.0))
sketch2.addConstraint(Sketcher.Constraint("DistanceX", -1, 1, 44, 2, 30.0))
sketch2.addConstraint(Sketcher.Constraint("DistanceX", 56, 2, -1, 1, 10.0))
sketch2.addConstraint(Sketcher.Constraint("DistanceX", 14, 2, -1, 1, 26.5))
sketch2.addConstraint(Sketcher.Constraint("DistanceX", 11, 1, 11, 2, 17.666667))
sketch2.addConstraint(Sketcher.Constraint("DistanceX", 10, 2, -1, 1, 61.833333))
pocket1 = body.newObject("PartDesign::Pocket", "Pocket")
pocket1.Profile = sketch2
pocket1.Type = "ThroughAll"
pocket1.Midplane = True

# Sketch on XY plane
sketch3 = body.newObject("Sketcher::SketchObject", "Sketch002")
sketch3.AttachmentSupport = (doc.getObject("XY_Plane"), [""])
sketch3.MapMode = "FlatFace"
sketch3.AttachmentOffset = App.Placement(Vector(0, 0, 3), App.Rotation())
sketch3.addGeometry(Part.LineSegment(Vector(-61.6, 27.325, 0), Vector(-61.6, 22.5, 0)), False)
sketch3.addGeometry(Part.LineSegment(Vector(-61.6, 22.5, 0), Vector(-58.4, 22.5, 0)), False)
sketch3.addGeometry(Part.LineSegment(Vector(-58.4, 22.5, 0), Vector(-58.4, 27.325, 0)), False)
sketch3.addGeometry(Part.LineSegment(Vector(-58.4, 27.325, 0), Vector(-57.4, 27.325, 0)), False)
sketch3.addGeometry(Part.LineSegment(Vector(-57.4, 27.325, 0), Vector(-57.4, 29.825, 0)), False)
sketch3.addGeometry(Part.LineSegment(Vector(-57.4, 29.825, 0), Vector(-58.4, 29.825, 0)), False)
sketch3.addGeometry(Part.LineSegment(Vector(-58.4, 29.825, 0), Vector(-58.4, 33, 0)), False)
sketch3.addGeometry(Part.LineSegment(Vector(-58.4, 33, 0), Vector(-61.6, 33, 0)), False)
sketch3.addGeometry(Part.LineSegment(Vector(-61.6, 33, 0), Vector(-61.6, 29.825, 0)), False)
sketch3.addGeometry(Part.LineSegment(Vector(-61.6, 29.825, 0), Vector(-62.6, 29.825, 0)), False)
sketch3.addGeometry(Part.LineSegment(Vector(-62.6, 29.825, 0), Vector(-62.6, 27.325, 0)), False)
sketch3.addGeometry(Part.LineSegment(Vector(-62.6, 27.325, 0), Vector(-61.6, 27.325, 0)), False)
sketch3.addGeometry(Part.LineSegment(Vector(58.4, 27.325, 0), Vector(58.4, 22.5, 0)), False)
sketch3.addGeometry(Part.LineSegment(Vector(58.4, 22.5, 0), Vector(61.6, 22.5, 0)), False)
sketch3.addGeometry(Part.LineSegment(Vector(61.6, 22.5, 0), Vector(61.6, 27.325, 0)), False)
sketch3.addGeometry(Part.LineSegment(Vector(61.6, 27.325, 0), Vector(62.6, 27.325, 0)), False)
sketch3.addGeometry(Part.LineSegment(Vector(62.6, 27.325, 0), Vector(62.6, 29.825, 0)), False)
sketch3.addGeometry(Part.LineSegment(Vector(62.6, 29.825, 0), Vector(61.6, 29.825, 0)), False)
sketch3.addGeometry(Part.LineSegment(Vector(61.6, 29.825, 0), Vector(61.6, 33, 0)), False)
sketch3.addGeometry(Part.LineSegment(Vector(61.6, 33, 0), Vector(58.4, 33, 0)), False)
sketch3.addGeometry(Part.LineSegment(Vector(58.4, 33, 0), Vector(58.4, 29.825, 0)), False)
sketch3.addGeometry(Part.LineSegment(Vector(58.4, 29.825, 0), Vector(57.4, 29.825, 0)), False)
sketch3.addGeometry(Part.LineSegment(Vector(57.4, 29.825, 0), Vector(57.4, 27.325, 0)), False)
sketch3.addGeometry(Part.LineSegment(Vector(57.4, 27.325, 0), Vector(58.4, 27.325, 0)), False)
sketch3.addConstraint(Sketcher.Constraint("Coincident", 0, 2, 1, 1))
sketch3.addConstraint(Sketcher.Constraint("Coincident", 1, 2, 2, 1))
sketch3.addConstraint(Sketcher.Constraint("Coincident", 2, 2, 3, 1))
sketch3.addConstraint(Sketcher.Constraint("Coincident", 3, 2, 4, 1))
sketch3.addConstraint(Sketcher.Constraint("Coincident", 4, 2, 5, 1))
sketch3.addConstraint(Sketcher.Constraint("Coincident", 5, 2, 6, 1))
sketch3.addConstraint(Sketcher.Constraint("Coincident", 6, 2, 7, 1))
sketch3.addConstraint(Sketcher.Constraint("Coincident", 7, 2, 8, 1))
sketch3.addConstraint(Sketcher.Constraint("Coincident", 8, 2, 9, 1))
sketch3.addConstraint(Sketcher.Constraint("Coincident", 9, 2, 10, 1))
sketch3.addConstraint(Sketcher.Constraint("Coincident", 10, 2, 11, 1))
sketch3.addConstraint(Sketcher.Constraint("Coincident", 11, 2, 0, 1))
sketch3.addConstraint(Sketcher.Constraint("Coincident", 12, 2, 13, 1))
sketch3.addConstraint(Sketcher.Constraint("Coincident", 13, 2, 14, 1))
sketch3.addConstraint(Sketcher.Constraint("Coincident", 14, 2, 15, 1))
sketch3.addConstraint(Sketcher.Constraint("Coincident", 15, 2, 16, 1))
sketch3.addConstraint(Sketcher.Constraint("Coincident", 16, 2, 17, 1))
sketch3.addConstraint(Sketcher.Constraint("Coincident", 17, 2, 18, 1))
sketch3.addConstraint(Sketcher.Constraint("Coincident", 18, 2, 19, 1))
sketch3.addConstraint(Sketcher.Constraint("Coincident", 19, 2, 20, 1))
sketch3.addConstraint(Sketcher.Constraint("Coincident", 20, 2, 21, 1))
sketch3.addConstraint(Sketcher.Constraint("Coincident", 21, 2, 22, 1))
sketch3.addConstraint(Sketcher.Constraint("Coincident", 22, 2, 23, 1))
sketch3.addConstraint(Sketcher.Constraint("Coincident", 23, 2, 12, 1))
sketch3.addConstraint(Sketcher.Constraint("Vertical", 0))
sketch3.addConstraint(Sketcher.Constraint("Horizontal", 1))
sketch3.addConstraint(Sketcher.Constraint("Vertical", 2))
sketch3.addConstraint(Sketcher.Constraint("Horizontal", 3))
sketch3.addConstraint(Sketcher.Constraint("Vertical", 4))
sketch3.addConstraint(Sketcher.Constraint("Horizontal", 5))
sketch3.addConstraint(Sketcher.Constraint("Vertical", 6))
sketch3.addConstraint(Sketcher.Constraint("Horizontal", 7))
sketch3.addConstraint(Sketcher.Constraint("Vertical", 8))
sketch3.addConstraint(Sketcher.Constraint("Horizontal", 9))
sketch3.addConstraint(Sketcher.Constraint("Vertical", 10))
sketch3.addConstraint(Sketcher.Constraint("Horizontal", 11))
sketch3.addConstraint(Sketcher.Constraint("Vertical", 12))
sketch3.addConstraint(Sketcher.Constraint("Horizontal", 13))
sketch3.addConstraint(Sketcher.Constraint("Vertical", 14))
sketch3.addConstraint(Sketcher.Constraint("Horizontal", 15))
sketch3.addConstraint(Sketcher.Constraint("Vertical", 16))
sketch3.addConstraint(Sketcher.Constraint("Horizontal", 17))
sketch3.addConstraint(Sketcher.Constraint("Vertical", 18))
sketch3.addConstraint(Sketcher.Constraint("Horizontal", 19))
sketch3.addConstraint(Sketcher.Constraint("Vertical", 20))
sketch3.addConstraint(Sketcher.Constraint("Horizontal", 21))
sketch3.addConstraint(Sketcher.Constraint("Vertical", 22))
sketch3.addConstraint(Sketcher.Constraint("Horizontal", 23))
sketch3.addConstraint(Sketcher.Constraint("Symmetric", 1, 2, 12, 2, -2))
sketch3.addConstraint(Sketcher.Constraint("Symmetric", 11, 2, 14, 2, -2))
sketch3.addConstraint(Sketcher.Constraint("Symmetric", 9, 2, 16, 2, -2))
sketch3.addConstraint(Sketcher.Constraint("Symmetric", 7, 2, 18, 2, -2))
sketch3.addConstraint(Sketcher.Constraint("Symmetric", 5, 2, 20, 2, -2))
sketch3.addConstraint(Sketcher.Constraint("Symmetric", 3, 2, 22, 2, -2))
sketch3.addConstraint(Sketcher.Constraint("Horizontal", 5, 2, 8, 2))
sketch3.addConstraint(Sketcher.Constraint("Horizontal", 3, 2, 10, 2))
sketch3.addConstraint(Sketcher.Constraint("Vertical", 2, 2, 5, 2))
sketch3.addConstraint(Sketcher.Constraint("Vertical", 0, 2, 7, 2))
sketch3.addConstraint(Sketcher.Constraint("Equal", 5, 9))
sketch3.addConstraint(Sketcher.Constraint("DistanceX", 3, 1, 3, 2, 1.0))
sketch3.addConstraint(Sketcher.Constraint("DistanceX", 1, 1, 1, 2, 3.2))
sketch3.addConstraint(Sketcher.Constraint("DistanceY", 4, 1, 4, 2, 2.5))
sketch3.addConstraint(Sketcher.Constraint("DistanceY", -1, 1, 6, 2, 33.0))
sketch3.addConstraint(Sketcher.Constraint("DistanceX", 3, 2, 13, 2, 119.0))
sketch3.addConstraint(Sketcher.Constraint("DistanceY", -1, 1, 0, 2, 22.5))
sketch3.addConstraint(Sketcher.Constraint("DistanceY", 0, 2, 0, 1, 4.825))
pocket2 = body.newObject("PartDesign::Pocket", "Pocket001")
pocket2.Profile = sketch3
pocket2.Type = "ThroughAll"
pocket2.Midplane = True
doc.recompute()

fillet = body.newObject("PartDesign::Fillet", "Fillet")
fillet.Base = (pocket2, edges_at(pocket2, [
    (114.5, 0, 1.5),
    (79.5, 0, 1.5),
    (-79.5, 0, 1.5),
    (-114.5, 0, 1.5),
]))
fillet.Radius = 7.5
doc.recompute()

fillet2 = body.newObject("PartDesign::Fillet", "Fillet001")
fillet2.Base = (fillet, edges_at(fillet, [
    (114.5, -33, 1.5),
    (79.5, -33, 1.5),
    (-79.5, -33, 1.5),
    (-114.5, -33, 1.5),
]))
fillet2.Radius = 2.5

doc.recompute()
